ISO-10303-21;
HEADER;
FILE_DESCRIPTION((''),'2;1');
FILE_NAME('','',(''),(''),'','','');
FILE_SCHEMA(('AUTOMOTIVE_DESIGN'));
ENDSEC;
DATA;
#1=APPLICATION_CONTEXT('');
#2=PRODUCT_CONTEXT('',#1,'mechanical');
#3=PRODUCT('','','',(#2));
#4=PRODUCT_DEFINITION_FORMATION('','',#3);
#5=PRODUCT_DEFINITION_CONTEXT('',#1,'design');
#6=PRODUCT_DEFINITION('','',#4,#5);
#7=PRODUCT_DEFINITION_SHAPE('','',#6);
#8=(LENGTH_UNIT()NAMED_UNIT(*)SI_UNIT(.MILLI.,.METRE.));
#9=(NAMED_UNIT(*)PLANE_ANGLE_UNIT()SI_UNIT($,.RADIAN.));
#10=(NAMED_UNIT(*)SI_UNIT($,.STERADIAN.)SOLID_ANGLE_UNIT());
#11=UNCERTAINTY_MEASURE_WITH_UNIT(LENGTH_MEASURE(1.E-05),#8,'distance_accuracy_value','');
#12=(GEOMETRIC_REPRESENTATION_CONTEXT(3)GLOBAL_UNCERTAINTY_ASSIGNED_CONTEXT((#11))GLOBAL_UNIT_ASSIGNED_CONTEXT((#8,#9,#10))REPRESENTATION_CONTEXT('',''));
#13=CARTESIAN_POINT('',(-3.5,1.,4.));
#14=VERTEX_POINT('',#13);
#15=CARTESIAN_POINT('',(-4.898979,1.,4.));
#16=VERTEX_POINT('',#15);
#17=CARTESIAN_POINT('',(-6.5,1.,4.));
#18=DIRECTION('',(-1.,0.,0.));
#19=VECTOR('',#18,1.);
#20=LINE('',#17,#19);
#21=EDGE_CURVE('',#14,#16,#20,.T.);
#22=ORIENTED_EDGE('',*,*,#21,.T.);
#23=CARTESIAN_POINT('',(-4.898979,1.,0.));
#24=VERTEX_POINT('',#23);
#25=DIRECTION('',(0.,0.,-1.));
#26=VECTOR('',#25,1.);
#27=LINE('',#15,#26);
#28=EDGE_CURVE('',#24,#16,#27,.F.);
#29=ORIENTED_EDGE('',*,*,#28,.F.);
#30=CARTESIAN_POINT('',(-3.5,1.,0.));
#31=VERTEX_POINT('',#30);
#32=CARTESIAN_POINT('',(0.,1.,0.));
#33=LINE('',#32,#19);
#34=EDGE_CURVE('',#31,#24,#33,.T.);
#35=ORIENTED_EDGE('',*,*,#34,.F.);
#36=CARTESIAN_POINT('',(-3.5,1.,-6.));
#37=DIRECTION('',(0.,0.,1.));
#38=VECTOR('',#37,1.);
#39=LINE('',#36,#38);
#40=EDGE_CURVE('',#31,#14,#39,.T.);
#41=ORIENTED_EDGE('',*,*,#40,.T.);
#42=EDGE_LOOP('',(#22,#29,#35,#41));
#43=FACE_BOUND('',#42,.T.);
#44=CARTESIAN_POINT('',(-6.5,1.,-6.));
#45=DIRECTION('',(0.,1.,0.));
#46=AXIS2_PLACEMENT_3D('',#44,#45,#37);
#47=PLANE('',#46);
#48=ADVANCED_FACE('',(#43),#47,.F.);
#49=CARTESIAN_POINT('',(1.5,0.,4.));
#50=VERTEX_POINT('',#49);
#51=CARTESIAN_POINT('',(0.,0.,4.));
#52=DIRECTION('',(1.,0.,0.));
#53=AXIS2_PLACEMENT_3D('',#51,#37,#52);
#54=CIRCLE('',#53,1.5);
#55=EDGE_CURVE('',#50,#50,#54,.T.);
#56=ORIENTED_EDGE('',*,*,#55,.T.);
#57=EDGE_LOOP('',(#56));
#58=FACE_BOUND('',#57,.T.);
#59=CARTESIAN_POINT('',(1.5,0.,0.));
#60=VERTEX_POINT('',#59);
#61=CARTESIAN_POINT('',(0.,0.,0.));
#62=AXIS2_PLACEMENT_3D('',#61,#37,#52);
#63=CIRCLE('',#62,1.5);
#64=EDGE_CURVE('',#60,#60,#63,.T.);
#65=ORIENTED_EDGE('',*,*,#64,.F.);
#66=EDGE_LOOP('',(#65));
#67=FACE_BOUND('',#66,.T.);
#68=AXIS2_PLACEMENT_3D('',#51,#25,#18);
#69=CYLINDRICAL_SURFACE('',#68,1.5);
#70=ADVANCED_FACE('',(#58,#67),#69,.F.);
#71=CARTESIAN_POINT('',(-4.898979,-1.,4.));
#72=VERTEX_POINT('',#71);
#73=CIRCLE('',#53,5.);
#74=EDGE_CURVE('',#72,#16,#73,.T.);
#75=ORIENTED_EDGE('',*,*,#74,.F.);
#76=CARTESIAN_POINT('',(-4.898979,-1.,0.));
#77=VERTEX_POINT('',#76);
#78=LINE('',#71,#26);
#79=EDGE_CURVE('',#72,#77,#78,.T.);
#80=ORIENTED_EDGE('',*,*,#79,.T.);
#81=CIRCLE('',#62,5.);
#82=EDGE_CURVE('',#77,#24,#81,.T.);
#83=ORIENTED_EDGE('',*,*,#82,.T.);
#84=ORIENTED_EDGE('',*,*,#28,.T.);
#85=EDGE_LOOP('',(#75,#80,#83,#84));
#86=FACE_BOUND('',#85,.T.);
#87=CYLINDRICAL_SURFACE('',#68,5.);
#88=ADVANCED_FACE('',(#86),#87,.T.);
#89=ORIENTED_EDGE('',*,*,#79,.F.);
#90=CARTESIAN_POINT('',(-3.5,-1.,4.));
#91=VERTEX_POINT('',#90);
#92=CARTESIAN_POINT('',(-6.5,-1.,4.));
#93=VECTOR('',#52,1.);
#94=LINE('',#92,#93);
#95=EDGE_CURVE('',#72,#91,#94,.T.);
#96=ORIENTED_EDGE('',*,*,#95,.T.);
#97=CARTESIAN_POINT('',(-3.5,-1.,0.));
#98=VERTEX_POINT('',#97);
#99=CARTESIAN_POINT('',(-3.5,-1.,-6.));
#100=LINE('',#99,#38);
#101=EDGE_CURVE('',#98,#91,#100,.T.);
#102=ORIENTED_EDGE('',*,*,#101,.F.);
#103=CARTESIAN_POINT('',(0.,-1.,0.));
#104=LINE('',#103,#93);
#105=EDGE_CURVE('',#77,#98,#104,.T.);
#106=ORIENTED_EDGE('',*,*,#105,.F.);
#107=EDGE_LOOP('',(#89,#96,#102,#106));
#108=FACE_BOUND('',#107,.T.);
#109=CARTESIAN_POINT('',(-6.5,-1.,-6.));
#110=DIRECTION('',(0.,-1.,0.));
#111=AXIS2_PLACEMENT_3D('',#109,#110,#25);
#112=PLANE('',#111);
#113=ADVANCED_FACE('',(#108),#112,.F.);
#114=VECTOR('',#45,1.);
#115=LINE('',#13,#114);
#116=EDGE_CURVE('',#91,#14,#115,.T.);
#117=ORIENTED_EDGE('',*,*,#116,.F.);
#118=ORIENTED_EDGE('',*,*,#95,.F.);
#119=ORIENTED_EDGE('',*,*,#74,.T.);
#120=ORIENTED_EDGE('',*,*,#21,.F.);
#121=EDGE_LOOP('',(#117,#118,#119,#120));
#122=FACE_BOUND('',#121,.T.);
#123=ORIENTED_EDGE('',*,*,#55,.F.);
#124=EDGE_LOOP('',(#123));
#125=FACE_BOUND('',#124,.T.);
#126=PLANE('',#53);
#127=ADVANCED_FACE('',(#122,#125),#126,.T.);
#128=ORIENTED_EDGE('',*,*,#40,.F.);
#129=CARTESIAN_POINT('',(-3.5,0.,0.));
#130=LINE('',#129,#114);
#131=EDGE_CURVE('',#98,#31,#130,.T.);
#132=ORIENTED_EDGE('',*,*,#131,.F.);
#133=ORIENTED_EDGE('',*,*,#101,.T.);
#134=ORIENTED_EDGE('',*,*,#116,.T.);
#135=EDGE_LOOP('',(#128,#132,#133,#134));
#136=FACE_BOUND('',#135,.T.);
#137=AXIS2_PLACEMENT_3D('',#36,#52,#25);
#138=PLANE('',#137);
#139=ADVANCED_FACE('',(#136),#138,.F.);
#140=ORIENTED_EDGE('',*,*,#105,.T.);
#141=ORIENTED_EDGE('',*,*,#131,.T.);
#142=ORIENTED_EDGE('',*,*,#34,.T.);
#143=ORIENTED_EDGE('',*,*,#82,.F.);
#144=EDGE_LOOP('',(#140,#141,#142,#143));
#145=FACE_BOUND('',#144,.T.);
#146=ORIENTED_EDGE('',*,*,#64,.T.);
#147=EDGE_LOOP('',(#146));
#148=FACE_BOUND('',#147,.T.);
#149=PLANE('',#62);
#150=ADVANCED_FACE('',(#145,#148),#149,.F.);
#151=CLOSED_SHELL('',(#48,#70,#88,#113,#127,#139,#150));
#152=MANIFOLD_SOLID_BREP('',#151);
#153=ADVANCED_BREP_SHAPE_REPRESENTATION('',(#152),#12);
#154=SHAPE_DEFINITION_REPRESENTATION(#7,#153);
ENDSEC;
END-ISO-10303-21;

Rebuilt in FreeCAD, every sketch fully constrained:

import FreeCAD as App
import Part
import Sketcher
Q = App.Units.Quantity

doc = App.newDocument("Part")
body = doc.addObject("PartDesign::Body", "Body")

# Sketch on XY plane
sketch1 = body.newObject("Sketcher::SketchObject", "Sketch")
sketch1.AttachmentSupport = (doc.getObject("XY_Plane"), [""])
sketch1.MapMode = "FlatFace"
sketch1.addGeometry(Part.Circle(App.Vector(0, 0, 0), App.Vector(0, 0, 1), 5), False)
sketch1.addGeometry(Part.Circle(App.Vector(0, 0, 0), App.Vector(0, 0, 1), 1.5), False)
sketch1.addConstraint(Sketcher.Constraint("Coincident", 0, 3, -1, 1))
sketch1.addConstraint(Sketcher.Constraint("Coincident", 1, 3, -1, 1))
sketch1.addConstraint(Sketcher.Constraint("Diameter", 0, Q("10 mm")))
sketch1.addConstraint(Sketcher.Constraint("Diameter", 1, Q("3 mm")))
pad1 = body.newObject("PartDesign::Pad", "Pad")
pad1.Profile = sketch1
pad1.Length = 4

# Sketch on XY plane
sketch2 = body.newObject("Sketcher::SketchObject", "Sketch001")
sketch2.AttachmentSupport = (doc.getObject("XY_Plane"), [""])
sketch2.MapMode = "FlatFace"
sketch2.AttachmentOffset = App.Placement(App.Vector(0, 0, 4), App.Rotation())
sketch2.addGeometry(Part.LineSegment(App.Vector(-6.5, 1, 0), App.Vector(-6.5, -1, 0)), False)
sketch2.addGeometry(Part.LineSegment(App.Vector(-6.5, -1, 0), App.Vector(-3.5, -1, 0)), False)
sketch2.addGeometry(Part.LineSegment(App.Vector(-3.5, -1, 0), App.Vector(-3.5, 1, 0)), False)
sketch2.addGeometry(Part.LineSegment(App.Vector(-3.5, 1, 0), App.Vector(-6.5, 1, 0)), False)
sketch2.addConstraint(Sketcher.Constraint("Coincident", 0, 2, 1, 1))
sketch2.addConstraint(Sketcher.Constraint("Coincident", 1, 2, 2, 1))
sketch2.addConstraint(Sketcher.Constraint("Coincident", 2, 2, 3, 1))
sketch2.addConstraint(Sketcher.Constraint("Coincident", 3, 2, 0, 1))
sketch2.addConstraint(Sketcher.Constraint("Vertical", 0))
sketch2.addConstraint(Sketcher.Constraint("Horizontal", 1))
sketch2.addConstraint(Sketcher.Constraint("Vertical", 2))
sketch2.addConstraint(Sketcher.Constraint("Horizontal", 3))
sketch2.addConstraint(Sketcher.Constraint("DistanceX", 1, 1, 1, 2, Q("3 mm")))
sketch2.addConstraint(Sketcher.Constraint("DistanceY", 0, 2, 0, 1, Q("2 mm")))
sketch2.addConstraint(Sketcher.Constraint("DistanceY", 0, 2, -1, 1, Q("1 mm")))
sketch2.addConstraint(Sketcher.Constraint("DistanceX", 0, 2, -1, 1, Q("6.5 mm")))
pocket1 = body.newObject("PartDesign::Pocket", "Pocket")
pocket1.Profile = sketch2
pocket1.Length = 10

doc.recompute()
